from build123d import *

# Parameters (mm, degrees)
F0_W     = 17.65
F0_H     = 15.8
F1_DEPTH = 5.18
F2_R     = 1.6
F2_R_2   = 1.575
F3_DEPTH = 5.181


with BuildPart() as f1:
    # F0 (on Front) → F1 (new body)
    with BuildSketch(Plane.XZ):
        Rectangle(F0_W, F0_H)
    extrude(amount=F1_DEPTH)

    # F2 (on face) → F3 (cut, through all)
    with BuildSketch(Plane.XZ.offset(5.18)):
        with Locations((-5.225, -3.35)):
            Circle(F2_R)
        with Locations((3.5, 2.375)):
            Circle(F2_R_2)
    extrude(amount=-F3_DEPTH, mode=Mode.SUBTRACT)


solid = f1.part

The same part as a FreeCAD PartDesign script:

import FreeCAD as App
import Part
import Sketcher
from FreeCAD import Vector
Q = App.Units.Quantity


def add_polygon(sketch, points):
    """Adds a closed chain of lines whose ends are joined by coincident constraints."""
    first, n = sketch.GeometryCount, len(points)
    for a, b in zip(points, points[1:] + points[:1]):
        sketch.addGeometry(Part.LineSegment(App.Vector(*a, 0), App.Vector(*b, 0)), False)
    for i in range(n):
        sketch.addConstraint(Sketcher.Constraint("Coincident", first + i, 2, first + (i + 1) % n, 1))

doc = App.newDocument("Part")
body = doc.addObject("PartDesign::Body", "Body")

# Sketch on XZ plane
sketch1 = body.newObject("Sketcher::SketchObject", "Sketch")
sketch1.AttachmentSupport = (doc.getObject("XZ_Plane"), [""])
sketch1.MapMode = "FlatFace"
add_polygon(sketch1, [(-9, 8), (-9, -8), (9, -8), (9, 8)])  # lines 0-3
sketch1.addConstraint([
    Sketcher.Constraint("Vertical", 0),
    Sketcher.Constraint("Horizontal", 1),
    Sketcher.Constraint("Vertical", 2),
    Sketcher.Constraint("Horizontal", 3),
    Sketcher.Constraint("Symmetric", 0, 2, 2, 2, -1, 1),
    Sketcher.Constraint("DistanceY", 0, 2, 0, 1, Q("15.8 mm")),
    Sketcher.Constraint("DistanceX", 1, 1, 1, 2, Q("17.65 mm")),
])
pad1 = body.newObject("PartDesign::Pad", "Pad")
pad1.Profile = sketch1
pad1.Length = 5.18

# Sketch on XZ plane
sketch2 = body.newObject("Sketcher::SketchObject", "Sketch001")
sketch2.AttachmentSupport = (doc.getObject("XZ_Plane"), [""])
sketch2.MapMode = "FlatFace"
sketch2.AttachmentOffset = App.Placement(Vector(0, 0, 5.18), App.Rotation())
sketch2.addGeometry([
    Part.Circle(Vector(-5.2, -3.4, 0), Vector(0, 0, 1), 1.6),
    Part.Circle(Vector(3.5, 2.4, 0), Vector(0, 0, 1), 1.6),
], False)
sketch2.addConstraint([
    Sketcher.Constraint("Diameter", 0, Q("3.2 mm")),
    Sketcher.Constraint("Diameter", 1, Q("3.15 mm")),
    Sketcher.Constraint("DistanceX", -1, 1, 1, 3, Q("3.5 mm")),
    Sketcher.Constraint("DistanceY", 0, 3, -1, 1, Q("3.35 mm")),
    Sketcher.Constraint("DistanceX", 0, 3, -1, 1, Q("5.225 mm")),
    Sketcher.Constraint("DistanceY", -1, 1, 1, 3, Q("2.375 mm")),
])
pocket1 = body.newObject("PartDesign::Pocket", "Pocket")
pocket1.Profile = sketch2
pocket1.Type = "ThroughAll"

doc.recompute()
